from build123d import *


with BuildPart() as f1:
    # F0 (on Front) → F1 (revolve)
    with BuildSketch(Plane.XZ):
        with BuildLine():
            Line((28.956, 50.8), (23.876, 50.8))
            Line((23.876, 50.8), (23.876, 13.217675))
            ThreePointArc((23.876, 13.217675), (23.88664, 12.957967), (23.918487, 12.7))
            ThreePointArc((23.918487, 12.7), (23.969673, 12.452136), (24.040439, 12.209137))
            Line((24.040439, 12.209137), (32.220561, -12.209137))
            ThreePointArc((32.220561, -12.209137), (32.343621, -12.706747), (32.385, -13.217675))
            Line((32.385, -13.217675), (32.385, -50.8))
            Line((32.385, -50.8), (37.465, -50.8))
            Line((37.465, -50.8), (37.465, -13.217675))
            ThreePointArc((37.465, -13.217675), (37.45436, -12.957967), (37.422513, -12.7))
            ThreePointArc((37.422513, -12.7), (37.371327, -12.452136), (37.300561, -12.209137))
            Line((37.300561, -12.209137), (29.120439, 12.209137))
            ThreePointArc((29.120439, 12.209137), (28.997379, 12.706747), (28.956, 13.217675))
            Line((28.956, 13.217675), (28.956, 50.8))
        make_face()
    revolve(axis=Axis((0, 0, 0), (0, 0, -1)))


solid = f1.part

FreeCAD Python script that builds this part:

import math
import FreeCAD as App
import Part
import Sketcher
from FreeCAD import Vector
Q = App.Units.Quantity

doc = App.newDocument("Part")
params = doc.addObject("Spreadsheet::Sheet", "Params")
for row, (alias, value) in enumerate([
    ("sketch1_width", "0.2 in"),
    ("revolution_angle", "360 deg"),
], start=1):
    params.set(f"A{row}", alias)
    params.set(f"B{row}", "=" + value)
    params.setAlias(f"B{row}", alias)

body = doc.addObject("PartDesign::Body", "Body")

sketch1 = body.newObject("Sketcher::SketchObject", "Sketch")
sketch1.AttachmentSupport = (doc.getObject("XZ_Plane"), [""])
sketch1.MapMode = "FlatFace"
sketch1.addGeometry(Part.LineSegment(Vector(29, 50.8, 0), Vector(23.9, 50.8, 0)), False)
sketch1.addGeometry(Part.LineSegment(Vector(23.9, 50.8, 0), Vector(23.9, 13.2, 0)), False)
sketch1.addGeometry(Part.ArcOfCircle(Part.Circle(Vector(27.1, 13.2, 0), Vector(0, 0, 1), 3.2), math.radians(-180), math.radians(-170.62)), False)
sketch1.addGeometry(Part.ArcOfCircle(Part.Circle(Vector(27.1, 13.2, 0), Vector(0, 0, 1), 3.2), math.radians(-170.62), math.radians(-161.48)), False)
sketch1.addGeometry(Part.LineSegment(Vector(24, 12.2, 0), Vector(32.2, -12.2, 0)), False)
sketch1.addGeometry(Part.ArcOfCircle(Part.Circle(Vector(29.2, -13.2, 0), Vector(0, 0, 1), 3.2), math.radians(0), math.radians(18.52)), False)
sketch1.addGeometry(Part.LineSegment(Vector(32.4, -13.2, 0), Vector(32.4, -50.8, 0)), False)
sketch1.addGeometry(Part.LineSegment(Vector(32.4, -50.8, 0), Vector(37.5, -50.8, 0)), False)
sketch1.addGeometry(Part.LineSegment(Vector(37.5, -50.8, 0), Vector(37.5, -13.2, 0)), False)
sketch1.addGeometry(Part.ArcOfCircle(Part.Circle(Vector(34.3, -13.2, 0), Vector(0, 0, 1), 3.2), math.radians(0), math.radians(9.38)), False)
sketch1.addGeometry(Part.ArcOfCircle(Part.Circle(Vector(34.3, -13.2, 0), Vector(0, 0, 1), 3.2), math.radians(9.38), math.radians(18.52)), False)
sketch1.addGeometry(Part.LineSegment(Vector(37.3, -12.2, 0), Vector(29.1, 12.2, 0)), False)
sketch1.addGeometry(Part.ArcOfCircle(Part.Circle(Vector(32.1, 13.2, 0), Vector(0, 0, 1), 3.2), math.radians(180), math.radians(198.52)), False)
sketch1.addGeometry(Part.LineSegment(Vector(29, 13.2, 0), Vector(29, 50.8, 0)), False)
sketch1.addConstraint(Sketcher.Constraint("Coincident", 0, 2, 1, 1))
sketch1.addConstraint(Sketcher.Constraint("Coincident", 1, 2, 2, 1))
sketch1.addConstraint(Sketcher.Constraint("Coincident", 2, 2, 3, 1))
sketch1.addConstraint(Sketcher.Constraint("Tangent", 3, 2, 4, 1))
sketch1.addConstraint(Sketcher.Constraint("Tangent", 4, 2, 5, 2))
sketch1.addConstraint(Sketcher.Constraint("Tangent", 5, 1, 6, 1))
sketch1.addConstraint(Sketcher.Constraint("Coincident", 6, 2, 7, 1))
sketch1.addConstraint(Sketcher.Constraint("Coincident", 7, 2, 8, 1))
sketch1.addConstraint(Sketcher.Constraint("Coincident", 8, 2, 9, 1))
sketch1.addConstraint(Sketcher.Constraint("Coincident", 9, 2, 10, 1))
sketch1.addConstraint(Sketcher.Constraint("Tangent", 10, 2, 11, 1))
sketch1.addConstraint(Sketcher.Constraint("Tangent", 11, 2, 12, 2))
sketch1.addConstraint(Sketcher.Constraint("Tangent", 12, 1, 13, 1))
sketch1.addConstraint(Sketcher.Constraint("Coincident", 13, 2, 0, 1))
sketch1.addConstraint(Sketcher.Constraint("Horizontal", 0))
sketch1.addConstraint(Sketcher.Constraint("Vertical", 1))
sketch1.addConstraint(Sketcher.Constraint("Vertical", 6))
sketch1.addConstraint(Sketcher.Constraint("Horizontal", 7))
sketch1.addConstraint(Sketcher.Constraint("Vertical", 8))
sketch1.addConstraint(Sketcher.Constraint("Vertical", 13))
sketch1.addConstraint(Sketcher.Constraint("Equal", 2, 9))
sketch1.addConstraint(Sketcher.Constraint("Equal", 3, 10))
sketch1.addConstraint(Sketcher.Constraint("Equal", 5, 12))
sketch1.addConstraint(Sketcher.Constraint("Parallel", 4, 11))
sketch1.addConstraint(Sketcher.Constraint("Horizontal", 5, 3, 10, 3))
sketch1.addConstraint(Sketcher.Constraint("Horizontal", 3, 3, 12, 3))
sketch1.addConstraint(Sketcher.Constraint("Horizontal", 5, 1, 8, 2))
sketch1.addConstraint(Sketcher.Constraint("Horizontal", 4, 2, 10, 2))
sketch1.addConstraint(Sketcher.Constraint("Horizontal", 1, 2, 12, 1))
sketch1.addConstraint(Sketcher.Constraint("Equal", 0, 7))
sketch1.addConstraint(Sketcher.Constraint("Equal", 1, 6))
sketch1.addConstraint(Sketcher.Constraint("DistanceX", 0, 2, 0, 1, Q("0.2 in")))
sketch1.addConstraint(Sketcher.Constraint("DistanceY", -1, 1, 0, 2, Q("2 in")))
sketch1.addConstraint(Sketcher.Constraint("DistanceY", 6, 2, -1, 1, Q("2 in")))
sketch1.addConstraint(Sketcher.Constraint("DistanceY", -1, 1, 2, 2, Q("0.5 in")))
sketch1.addConstraint(Sketcher.Constraint("DistanceY", 9, 2, -1, 1, Q("0.5 in")))
sketch1.addConstraint(Sketcher.Constraint("DistanceX", 3, 2, 11, 2, Q("0.2 in")))
sketch1.addConstraint(Sketcher.Constraint("DistanceX", -1, 1, 0, 2, Q("0.94 in")))
sketch1.addConstraint(Sketcher.Constraint("DistanceX", -1, 1, 5, 1, Q("1.275 in")))
sketch1.addConstraint(Sketcher.Constraint("Radius", 2, 3.175122))
sketch1.addConstraint(Sketcher.Constraint("Radius", 3, 3.174987))
sketch1.addConstraint(Sketcher.Constraint("DistanceX", 2, 2, 3, 3, 3.1325))
sketch1.setExpression("Constraints[31]", "Params.sketch1_width")
revolution = body.newObject("PartDesign::Revolution", "Revolution")
revolution.Profile = sketch1
revolution.ReferenceAxis = (sketch1, ["V_Axis"])
revolution.setExpression("Angle", "Params.revolution_angle")

doc.recompute()
